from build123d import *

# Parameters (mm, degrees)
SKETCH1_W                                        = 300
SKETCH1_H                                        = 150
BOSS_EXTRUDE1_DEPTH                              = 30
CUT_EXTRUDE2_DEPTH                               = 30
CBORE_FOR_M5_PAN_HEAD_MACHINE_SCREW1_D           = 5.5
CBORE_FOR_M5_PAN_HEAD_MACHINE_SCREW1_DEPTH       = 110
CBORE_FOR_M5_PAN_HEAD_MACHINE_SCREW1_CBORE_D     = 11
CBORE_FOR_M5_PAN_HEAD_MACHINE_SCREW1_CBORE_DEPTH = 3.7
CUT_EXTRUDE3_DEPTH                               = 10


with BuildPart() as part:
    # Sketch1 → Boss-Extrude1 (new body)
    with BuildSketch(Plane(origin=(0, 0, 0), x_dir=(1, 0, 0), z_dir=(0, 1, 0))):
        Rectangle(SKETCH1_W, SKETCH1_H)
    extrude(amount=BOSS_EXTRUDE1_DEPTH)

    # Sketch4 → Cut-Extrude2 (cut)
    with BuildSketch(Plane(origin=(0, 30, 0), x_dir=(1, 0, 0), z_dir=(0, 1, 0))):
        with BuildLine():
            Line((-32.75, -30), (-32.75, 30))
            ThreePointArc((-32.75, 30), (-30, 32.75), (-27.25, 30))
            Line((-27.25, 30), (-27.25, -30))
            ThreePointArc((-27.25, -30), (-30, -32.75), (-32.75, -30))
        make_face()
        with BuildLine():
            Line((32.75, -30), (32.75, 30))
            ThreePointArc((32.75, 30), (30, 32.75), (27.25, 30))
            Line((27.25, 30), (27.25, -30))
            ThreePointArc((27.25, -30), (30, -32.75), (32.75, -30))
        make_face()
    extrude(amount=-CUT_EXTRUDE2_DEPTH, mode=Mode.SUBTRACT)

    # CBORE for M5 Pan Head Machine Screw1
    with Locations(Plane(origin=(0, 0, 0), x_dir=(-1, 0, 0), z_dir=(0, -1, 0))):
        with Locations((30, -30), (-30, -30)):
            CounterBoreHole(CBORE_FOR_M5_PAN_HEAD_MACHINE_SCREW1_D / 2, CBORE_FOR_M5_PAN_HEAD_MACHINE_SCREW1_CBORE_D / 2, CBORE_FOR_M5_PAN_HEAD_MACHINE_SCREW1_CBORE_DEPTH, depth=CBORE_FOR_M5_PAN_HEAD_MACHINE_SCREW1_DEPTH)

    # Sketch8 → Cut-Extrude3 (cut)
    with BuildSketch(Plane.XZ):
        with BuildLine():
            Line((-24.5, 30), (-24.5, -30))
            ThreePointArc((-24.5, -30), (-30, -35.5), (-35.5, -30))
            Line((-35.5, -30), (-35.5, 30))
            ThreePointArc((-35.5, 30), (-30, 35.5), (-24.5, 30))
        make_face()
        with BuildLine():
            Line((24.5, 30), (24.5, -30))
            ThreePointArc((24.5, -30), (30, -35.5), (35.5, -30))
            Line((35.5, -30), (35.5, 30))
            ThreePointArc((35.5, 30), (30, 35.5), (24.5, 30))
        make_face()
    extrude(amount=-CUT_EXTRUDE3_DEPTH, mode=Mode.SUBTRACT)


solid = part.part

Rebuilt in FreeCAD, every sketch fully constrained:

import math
import FreeCAD as App
import Part
import Sketcher

V = App.Vector
Q = App.Units.Quantity


def add_polygon(sketch, points):
    """Adds a closed chain of lines whose ends are joined by coincident constraints."""
    first, n = sketch.GeometryCount, len(points)
    for a, b in zip(points, points[1:] + points[:1]):
        sketch.addGeometry(Part.LineSegment(App.Vector(*a, 0), App.Vector(*b, 0)), False)
    for i in range(n):
        sketch.addConstraint(Sketcher.Constraint("Coincident", first + i, 2, first + (i + 1) % n, 1))

doc = App.newDocument("Part")
body = doc.addObject("PartDesign::Body", "Body")

# Sketch on XZ plane
sketch1 = body.newObject("Sketcher::SketchObject", "Sketch")
sketch1.AttachmentSupport = (doc.getObject("XZ_Plane"), [""])
sketch1.MapMode = "FlatFace"
add_polygon(sketch1, [(-150, -75), (-150, 75), (150, 75), (150, -75)])  # lines 0-3
sketch1.addConstraint(Sketcher.Constraint("Vertical", 0))
sketch1.addConstraint(Sketcher.Constraint("Horizontal", 1))
sketch1.addConstraint(Sketcher.Constraint("Vertical", 2))
sketch1.addConstraint(Sketcher.Constraint("Horizontal", 3))
sketch1.addConstraint(Sketcher.Constraint("Symmetric", 0, 2, 2, 2, -1, 1))
sketch1.addConstraint(Sketcher.Constraint("DistanceX", 1, 1, 1, 2, Q("300 mm")))
sketch1.addConstraint(Sketcher.Constraint("DistanceY", 0, 1, 0, 2, Q("150 mm")))
pad1 = body.newObject("PartDesign::Pad", "Pad")
pad1.Profile = sketch1
pad1.Length = 30
pad1.Reversed = True

# Sketch on XZ plane
sketch2 = body.newObject("Sketcher::SketchObject", "Sketch001")
sketch2.AttachmentSupport = (doc.getObject("XZ_Plane"), [""])
sketch2.MapMode = "FlatFace"
sketch2.AttachmentOffset = App.Placement(V(0, 0, -30), App.Rotation())
sketch2.addGeometry(Part.LineSegment(V(-32.8, -30, 0), V(-32.8, 30, 0)), False)
sketch2.addGeometry(Part.ArcOfCircle(Part.Circle(V(-30, 30, 0), V(0, 0, 1), 2.8), math.radians(0), math.radians(180)), False)
sketch2.addGeometry(Part.LineSegment(V(-27.2, 30, 0), V(-27.2, -30, 0)), False)
sketch2.addGeometry(Part.ArcOfCircle(Part.Circle(V(-30, -30, 0), V(0, 0, 1), 2.8), math.radians(180), math.radians(360)), False)
sketch2.addGeometry(Part.LineSegment(V(32.8, 30, 0), V(32.8, -30, 0)), False)
sketch2.addGeometry(Part.ArcOfCircle(Part.Circle(V(30, -30, 0), V(0, 0, 1), 2.8), math.radians(180), math.radians(360)), False)
sketch2.addGeometry(Part.LineSegment(V(27.2, -30, 0), V(27.2, 30, 0)), False)
sketch2.addGeometry(Part.ArcOfCircle(Part.Circle(V(30, 30, 0), V(0, 0, 1), 2.8), math.radians(0), math.radians(180)), False)
sketch2.addConstraint(Sketcher.Constraint("Tangent", 0, 2, 1, 2))
sketch2.addConstraint(Sketcher.Constraint("Tangent", 1, 1, 2, 1))
sketch2.addConstraint(Sketcher.Constraint("Tangent", 2, 2, 3, 2))
sketch2.addConstraint(Sketcher.Constraint("Tangent", 3, 1, 0, 1))
sketch2.addConstraint(Sketcher.Constraint("Tangent", 4, 2, 5, 2))
sketch2.addConstraint(Sketcher.Constraint("Tangent", 5, 1, 6, 1))
sketch2.addConstraint(Sketcher.Constraint("Tangent", 6, 2, 7, 2))
sketch2.addConstraint(Sketcher.Constraint("Tangent", 7, 1, 4, 1))
sketch2.addConstraint(Sketcher.Constraint("Vertical", 0))
sketch2.addConstraint(Sketcher.Constraint("Vertical", 2))
sketch2.addConstraint(Sketcher.Constraint("Vertical", 4))
sketch2.addConstraint(Sketcher.Constraint("Vertical", 6))
sketch2.addConstraint(Sketcher.Constraint("Equal", 3, 5))
sketch2.addConstraint(Sketcher.Constraint("Symmetric", 1, 3, 5, 3, -1, 1))
sketch2.addConstraint(Sketcher.Constraint("Horizontal", 3, 3, 5, 3))
sketch2.addConstraint(Sketcher.Constraint("Horizontal", 1, 3, 7, 3))
sketch2.addConstraint(Sketcher.Constraint("DistanceY", 0, 1, 0, 2, Q("60 mm")))
sketch2.addConstraint(Sketcher.Constraint("Radius", 1, Q("2.75 mm")))
sketch2.addConstraint(Sketcher.Constraint("DistanceX", 1, 3, -1, 1, Q("30 mm")))
pocket1 = body.newObject("PartDesign::Pocket", "Pocket")
pocket1.Profile = sketch2
pocket1.Length = 30
pocket1.Reversed = True

# Sketch on XZ plane
sketch3 = body.newObject("Sketcher::SketchObject", "Sketch002")
sketch3.AttachmentSupport = (doc.getObject("XZ_Plane"), [""])
sketch3.MapMode = "FlatFace"
sketch3.addGeometry(Part.Circle(V(-30, 30, 0), V(0, 0, 1), 2.8), False)
sketch3.addGeometry(Part.Circle(V(30, 30, 0), V(0, 0, 1), 2.8), False)
sketch3.addConstraint(Sketcher.Constraint("Equal", 0, 1))
sketch3.addConstraint(Sketcher.Constraint("Symmetric", 0, 3, 1, 3, -2))
sketch3.addConstraint(Sketcher.Constraint("Diameter", 0, Q("5.5 mm")))
sketch3.addConstraint(Sketcher.Constraint("DistanceX", 0, 3, -1, 1, Q("30 mm")))
sketch3.addConstraint(Sketcher.Constraint("DistanceY", -1, 1, 0, 3, Q("30 mm")))
doc.recompute()
hole = body.newObject("PartDesign::Hole", "Hole")
hole.Profile = sketch3
hole.ThreadType = "None"
hole.Diameter = 5.5
hole.DepthType = "Dimension"
hole.Depth = 110
hole.DrillPoint = "Flat"
hole.HoleCutType = "Counterbore"
hole.HoleCutDiameter = 11
hole.HoleCutDepth = 3.7

# Sketch on XZ plane
sketch4 = body.newObject("Sketcher::SketchObject", "Sketch003")
sketch4.AttachmentSupport = (doc.getObject("XZ_Plane"), [""])
sketch4.MapMode = "FlatFace"
sketch4.addGeometry(Part.LineSegment(V(-24, -30, 0), V(-24, 30, 0)), False)
sketch4.addGeometry(Part.ArcOfCircle(Part.Circle(V(-30, 30, 0), V(0, 0, 1), 6), math.radians(0), math.radians(180)), False)
sketch4.addGeometry(Part.LineSegment(V(-36, 30, 0), V(-36, -30, 0)), False)
sketch4.addGeometry(Part.ArcOfCircle(Part.Circle(V(-30, -30, 0), V(0, 0, 1), 6), math.radians(180), math.radians(360)), False)
sketch4.addGeometry(Part.LineSegment(V(24, 30, 0), V(24, -30, 0)), False)
sketch4.addGeometry(Part.ArcOfCircle(Part.Circle(V(30, -30, 0), V(0, 0, 1), 6), math.radians(180), math.radians(360)), False)
sketch4.addGeometry(Part.LineSegment(V(36, -30, 0), V(36, 30, 0)), False)
sketch4.addGeometry(Part.ArcOfCircle(Part.Circle(V(30, 30, 0), V(0, 0, 1), 6), math.radians(0), math.radians(180)), False)
sketch4.addConstraint(Sketcher.Constraint("Tangent", 0, 2, 1, 1))
sketch4.addConstraint(Sketcher.Constraint("Tangent", 1, 2, 2, 1))
sketch4.addConstraint(Sketcher.Constraint("Tangent", 2, 2, 3, 1))
sketch4.addConstraint(Sketcher.Constraint("Tangent", 3, 2, 0, 1))
sketch4.addConstraint(Sketcher.Constraint("Tangent", 4, 2, 5, 1))
sketch4.addConstraint(Sketcher.Constraint("Tangent", 5, 2, 6, 1))
sketch4.addConstraint(Sketcher.Constraint("Tangent", 6, 2, 7, 1))
sketch4.addConstraint(Sketcher.Constraint("Tangent", 7, 2, 4, 1))
sketch4.addConstraint(Sketcher.Constraint("Vertical", 0))
sketch4.addConstraint(Sketcher.Constraint("Vertical", 2))
sketch4.addConstraint(Sketcher.Constraint("Vertical", 4))
sketch4.addConstraint(Sketcher.Constraint("Vertical", 6))
sketch4.addConstraint(Sketcher.Constraint("Equal", 3, 5))
sketch4.addConstraint(Sketcher.Constraint("Symmetric", 1, 3, 5, 3, -1, 1))
sketch4.addConstraint(Sketcher.Constraint("Horizontal", 3, 3, 5, 3))
sketch4.addConstraint(Sketcher.Constraint("Horizontal", 1, 3, 7, 3))
sketch4.addConstraint(Sketcher.Constraint("Radius", 1, Q("5.5 mm")))
sketch4.addConstraint(Sketcher.Constraint("DistanceY", 0, 1, 0, 2, Q("60 mm")))
sketch4.addConstraint(Sketcher.Constraint("DistanceX", 1, 3, -1, 1, Q("30 mm")))
pocket2 = body.newObject("PartDesign::Pocket", "Pocket001")
pocket2.Profile = sketch4
pocket2.Length = 10

doc.recompute()
